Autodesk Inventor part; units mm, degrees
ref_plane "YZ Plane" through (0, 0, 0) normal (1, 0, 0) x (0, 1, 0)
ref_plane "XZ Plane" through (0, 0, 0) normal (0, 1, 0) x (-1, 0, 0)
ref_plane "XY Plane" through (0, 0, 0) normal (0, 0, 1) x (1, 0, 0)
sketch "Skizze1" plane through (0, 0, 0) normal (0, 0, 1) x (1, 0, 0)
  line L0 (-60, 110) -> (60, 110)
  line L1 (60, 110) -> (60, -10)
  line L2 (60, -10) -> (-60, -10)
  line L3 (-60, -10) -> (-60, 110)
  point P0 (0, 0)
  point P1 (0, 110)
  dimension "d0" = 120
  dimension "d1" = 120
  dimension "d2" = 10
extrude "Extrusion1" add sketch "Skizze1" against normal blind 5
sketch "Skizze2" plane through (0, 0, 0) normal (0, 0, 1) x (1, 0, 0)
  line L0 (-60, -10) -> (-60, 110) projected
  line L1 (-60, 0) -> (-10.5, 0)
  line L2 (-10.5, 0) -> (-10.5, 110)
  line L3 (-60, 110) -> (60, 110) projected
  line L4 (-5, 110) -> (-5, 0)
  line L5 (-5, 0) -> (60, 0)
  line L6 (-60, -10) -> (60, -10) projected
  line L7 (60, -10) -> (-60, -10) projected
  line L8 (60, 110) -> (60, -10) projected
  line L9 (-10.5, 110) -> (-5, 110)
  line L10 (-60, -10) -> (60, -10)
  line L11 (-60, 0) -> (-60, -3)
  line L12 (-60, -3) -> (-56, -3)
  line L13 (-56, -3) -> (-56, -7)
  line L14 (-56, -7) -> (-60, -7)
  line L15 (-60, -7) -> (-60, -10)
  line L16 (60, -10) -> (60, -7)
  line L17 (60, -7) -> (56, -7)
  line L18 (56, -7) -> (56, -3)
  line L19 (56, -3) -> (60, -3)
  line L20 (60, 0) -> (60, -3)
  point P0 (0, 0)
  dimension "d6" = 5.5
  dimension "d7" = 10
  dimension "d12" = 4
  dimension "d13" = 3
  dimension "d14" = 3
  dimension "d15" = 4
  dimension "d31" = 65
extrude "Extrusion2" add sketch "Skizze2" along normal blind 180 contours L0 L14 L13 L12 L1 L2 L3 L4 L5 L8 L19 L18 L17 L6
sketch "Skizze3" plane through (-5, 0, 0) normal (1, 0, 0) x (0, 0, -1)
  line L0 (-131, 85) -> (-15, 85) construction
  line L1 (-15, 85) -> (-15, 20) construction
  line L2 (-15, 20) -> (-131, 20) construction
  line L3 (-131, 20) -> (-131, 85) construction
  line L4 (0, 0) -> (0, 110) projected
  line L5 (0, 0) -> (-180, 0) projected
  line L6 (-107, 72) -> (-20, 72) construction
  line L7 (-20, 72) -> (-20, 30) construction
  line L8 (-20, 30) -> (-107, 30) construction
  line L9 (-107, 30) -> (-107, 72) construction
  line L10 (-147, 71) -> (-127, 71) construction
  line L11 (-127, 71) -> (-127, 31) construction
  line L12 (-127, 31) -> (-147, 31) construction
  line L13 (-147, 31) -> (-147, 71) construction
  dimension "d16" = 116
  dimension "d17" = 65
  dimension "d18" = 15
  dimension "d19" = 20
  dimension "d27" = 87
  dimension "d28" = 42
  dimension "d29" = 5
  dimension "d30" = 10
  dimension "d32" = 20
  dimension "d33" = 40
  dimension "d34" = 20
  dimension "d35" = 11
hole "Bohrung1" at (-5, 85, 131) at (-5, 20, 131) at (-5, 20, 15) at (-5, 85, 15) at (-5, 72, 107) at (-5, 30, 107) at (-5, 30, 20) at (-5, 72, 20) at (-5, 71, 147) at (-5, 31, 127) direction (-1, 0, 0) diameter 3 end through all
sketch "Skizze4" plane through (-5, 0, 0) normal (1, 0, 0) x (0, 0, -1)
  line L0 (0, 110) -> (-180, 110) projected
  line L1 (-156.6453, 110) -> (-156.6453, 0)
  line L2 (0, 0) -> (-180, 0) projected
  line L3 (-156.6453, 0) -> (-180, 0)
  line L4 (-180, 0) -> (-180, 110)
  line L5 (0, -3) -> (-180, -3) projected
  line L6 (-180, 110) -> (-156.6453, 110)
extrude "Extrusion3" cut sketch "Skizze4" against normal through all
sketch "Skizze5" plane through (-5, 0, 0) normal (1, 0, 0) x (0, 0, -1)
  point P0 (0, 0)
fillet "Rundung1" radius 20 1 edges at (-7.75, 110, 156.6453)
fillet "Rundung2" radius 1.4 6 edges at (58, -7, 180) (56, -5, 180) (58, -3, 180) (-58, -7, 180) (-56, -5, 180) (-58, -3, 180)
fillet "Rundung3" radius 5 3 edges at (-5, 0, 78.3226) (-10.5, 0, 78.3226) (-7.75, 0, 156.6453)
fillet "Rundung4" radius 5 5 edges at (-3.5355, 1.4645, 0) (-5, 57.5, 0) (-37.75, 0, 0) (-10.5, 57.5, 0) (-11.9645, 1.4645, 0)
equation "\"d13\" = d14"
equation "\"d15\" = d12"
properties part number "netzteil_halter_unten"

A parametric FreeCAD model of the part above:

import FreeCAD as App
import Part
import Sketcher
from FreeCAD import Vector
Q = App.Units.Quantity


def edges_at(feature, points):
    """Names of the edges that pass closest to the given points."""
    edges = feature.Shape.Edges
    near = lambda p: min(range(len(edges)), key=lambda i: edges[i].distToShape(Part.Vertex(*p))[0])
    return sorted({f"Edge{near(p) + 1}" for p in points})


def add_polygon(sketch, points):
    """Adds a closed chain of lines whose ends are joined by coincident constraints."""
    first, n = sketch.GeometryCount, len(points)
    for a, b in zip(points, points[1:] + points[:1]):
        sketch.addGeometry(Part.LineSegment(App.Vector(*a, 0), App.Vector(*b, 0)), False)
    for i in range(n):
        sketch.addConstraint(Sketcher.Constraint("Coincident", first + i, 2, first + (i + 1) % n, 1))

doc = App.newDocument("Part")
body = doc.addObject("PartDesign::Body", "Body")

# Sketch on XY plane
sketch1 = body.newObject("Sketcher::SketchObject", "Sketch")
sketch1.AttachmentSupport = (doc.getObject("XY_Plane"), [""])
sketch1.MapMode = "FlatFace"
add_polygon(sketch1, [(60, 110), (-60, 110), (-60, -10), (60, -10)])  # lines 0-3
sketch1.addConstraint([
    Sketcher.Constraint("Horizontal", 0),
    Sketcher.Constraint("Vertical", 1),
    Sketcher.Constraint("Horizontal", 2),
    Sketcher.Constraint("Vertical", 3),
    Sketcher.Constraint("Equal", 2, 1),
    Sketcher.Constraint("DistanceX", 0, 2, 0, 1, Q("120 mm")),
    Sketcher.Constraint("DistanceY", 1, 2, -1, 1, Q("10 mm")),
    Sketcher.Constraint("DistanceX", 0, 2, -1, 1, Q("60 mm")),
])
pad1 = body.newObject("PartDesign::Pad", "Pad")
pad1.Profile = sketch1
pad1.Length = 5
pad1.Reversed = True

# Sketch on XY plane
sketch2 = body.newObject("Sketcher::SketchObject", "Sketch001")
sketch2.AttachmentSupport = (doc.getObject("XY_Plane"), [""])
sketch2.MapMode = "FlatFace"
add_polygon(sketch2, [(-60, -7), (-60, -10), (60, -10), (60, -7), (56, -7), (56, -3), (60, -3), (60, 0), (-5, 0), (-5, 110), (-10.5, 110), (-10.5, 0), (-60, 0), (-60, -3), (-56, -3), (-56, -7)])  # lines 0-15
sketch2.addConstraint([
    Sketcher.Constraint("Vertical", 0),
    Sketcher.Constraint("Horizontal", 1),
    Sketcher.Constraint("Vertical", 2),
    Sketcher.Constraint("Horizontal", 3),
    Sketcher.Constraint("Vertical", 4),
    Sketcher.Constraint("Horizontal", 5),
    Sketcher.Constraint("Vertical", 6),
    Sketcher.Constraint("Horizontal", 7),
    Sketcher.Constraint("Vertical", 8),
    Sketcher.Constraint("Horizontal", 9),
    Sketcher.Constraint("Vertical", 10),
    Sketcher.Constraint("Horizontal", 11),
    Sketcher.Constraint("Vertical", 12),
    Sketcher.Constraint("Horizontal", 13),
    Sketcher.Constraint("Vertical", 14),
    Sketcher.Constraint("Horizontal", 15),
    Sketcher.Constraint("Symmetric", 6, 2, 11, 2, -1, 1),
    Sketcher.Constraint("Symmetric", 4, 2, 13, 2, -2),
    Sketcher.Constraint("Symmetric", 2, 2, 15, 2, -2),
    Sketcher.Constraint("PointOnObject", 6, 2, -1),
    Sketcher.Constraint("Vertical", 2, 2, 5, 2),
    Sketcher.Constraint("Equal", 15, 4),
    Sketcher.Constraint("Equal", 2, 6),
    Sketcher.Constraint("DistanceX", 3, 2, 3, 1, Q("4 mm")),
    Sketcher.Constraint("DistanceX", 7, 2, 7, 1, Q("65 mm")),
    Sketcher.Constraint("DistanceY", 0, 2, 0, 1, Q("3 mm")),
    Sketcher.Constraint("DistanceX", 9, 2, 9, 1, Q("5.5 mm")),
    Sketcher.Constraint("DistanceX", 1, 1, 1, 2, Q("120 mm")),
    Sketcher.Constraint("DistanceY", 8, 1, 8, 2, Q("110 mm")),
])
pad2 = body.newObject("PartDesign::Pad", "Pad001")
pad2.Profile = sketch2
pad2.Length = 180

# Sketch on YZ plane
sketch3 = body.newObject("Sketcher::SketchObject", "Sketch002")
sketch3.AttachmentSupport = (doc.getObject("YZ_Plane"), [""])
sketch3.MapMode = "FlatFace"
sketch3.AttachmentOffset = App.Placement(Vector(0, 0, -5), App.Rotation())
sketch3.addGeometry([
    Part.Circle(Vector(85, 131, 0), Vector(0, 0, 1), 1.5),  # 0
    Part.Circle(Vector(20, 131, 0), Vector(0, 0, 1), 1.5),  # 1
    Part.Circle(Vector(20, 15, 0), Vector(0, 0, 1), 1.5),  # 2
    Part.Circle(Vector(85, 15, 0), Vector(0, 0, 1), 1.5),  # 3
    Part.Circle(Vector(72, 107, 0), Vector(0, 0, 1), 1.5),  # 4
    Part.Circle(Vector(30, 107, 0), Vector(0, 0, 1), 1.5),  # 5
    Part.Circle(Vector(30, 20, 0), Vector(0, 0, 1), 1.5),  # 6
    Part.Circle(Vector(72, 20, 0), Vector(0, 0, 1), 1.5),  # 7
    Part.Circle(Vector(71, 147, 0), Vector(0, 0, 1), 1.5),  # 8
    Part.Circle(Vector(31, 127, 0), Vector(0, 0, 1), 1.5),  # 9
], False)
sketch3.addConstraint([
    Sketcher.Constraint("Equal", 0, 1),
    Sketcher.Constraint("Equal", 1, 2),
    Sketcher.Constraint("Equal", 2, 3),
    Sketcher.Constraint("Equal", 3, 4),
    Sketcher.Constraint("Equal", 4, 5),
    Sketcher.Constraint("Equal", 5, 6),
    Sketcher.Constraint("Equal", 6, 7),
    Sketcher.Constraint("Equal", 7, 8),
    Sketcher.Constraint("Equal", 8, 9),
    Sketcher.Constraint("Horizontal", 0, 3, 1, 3),
    Sketcher.Constraint("Horizontal", 2, 3, 3, 3),
    Sketcher.Constraint("Horizontal", 4, 3, 5, 3),
    Sketcher.Constraint("Horizontal", 6, 3, 7, 3),
    Sketcher.Constraint("Vertical", 1, 3, 2, 3),
    Sketcher.Constraint("Vertical", 0, 3, 3, 3),
    Sketcher.Constraint("Vertical", 5, 3, 6, 3),
    Sketcher.Constraint("Vertical", 4, 3, 7, 3),
    Sketcher.Constraint("Diameter", 0, Q("3 mm")),
    Sketcher.Constraint("DistanceX", -1, 1, 0, 3, Q("85 mm")),
    Sketcher.Constraint("DistanceY", -1, 1, 0, 3, Q("131 mm")),
    Sketcher.Constraint("DistanceX", -1, 1, 1, 3, Q("20 mm")),
    Sketcher.Constraint("DistanceY", -1, 1, 2, 3, Q("15 mm")),
    Sketcher.Constraint("DistanceX", -1, 1, 4, 3, Q("72 mm")),
    Sketcher.Constraint("DistanceY", -1, 1, 4, 3, Q("107 mm")),
    Sketcher.Constraint("DistanceX", -1, 1, 5, 3, Q("30 mm")),
    Sketcher.Constraint("DistanceY", -1, 1, 6, 3, Q("20 mm")),
    Sketcher.Constraint("DistanceX", -1, 1, 8, 3, Q("71 mm")),
    Sketcher.Constraint("DistanceY", -1, 1, 8, 3, Q("147 mm")),
    Sketcher.Constraint("DistanceX", -1, 1, 9, 3, Q("31 mm")),
    Sketcher.Constraint("DistanceY", -1, 1, 9, 3, Q("127 mm")),
])
doc.recompute()
hole = body.newObject("PartDesign::Hole", "Hole")
hole.Profile = sketch3
hole.ThreadType = "None"
hole.Diameter = 3
hole.DepthType = "ThroughAll"

# Sketch on YZ plane
sketch4 = body.newObject("Sketcher::SketchObject", "Sketch003")
sketch4.AttachmentSupport = (doc.getObject("YZ_Plane"), [""])
sketch4.MapMode = "FlatFace"
sketch4.AttachmentOffset = App.Placement(Vector(0, 0, -5), App.Rotation())
add_polygon(sketch4, [(0, 157), (110, 157), (110, 180), (0, 180)])  # lines 0-3
sketch4.addConstraint([
    Sketcher.Constraint("Horizontal", 0),
    Sketcher.Constraint("Vertical", 1),
    Sketcher.Constraint("Horizontal", 2),
    Sketcher.Constraint("Vertical", 3),
    Sketcher.Constraint("PointOnObject", 2, 2, -2),
    Sketcher.Constraint("DistanceX", 0, 1, 0, 2, Q("110 mm")),
    Sketcher.Constraint("DistanceY", -1, 1, 1, 2, Q("180 mm")),
    Sketcher.Constraint("DistanceY", 1, 1, 1, 2, Q("23.3547 mm")),
])
pocket1 = body.newObject("PartDesign::Pocket", "Pocket")
pocket1.Profile = sketch4
pocket1.Type = "ThroughAll"
doc.recompute()

fillet = body.newObject("PartDesign::Fillet", "Fillet")
fillet.Base = (pocket1, edges_at(pocket1, [(-7.75, 110, 156.645)]))
fillet.Radius = 20
doc.recompute()

fillet2 = body.newObject("PartDesign::Fillet", "Fillet001")
fillet2.Base = (fillet, edges_at(fillet, [
    (58, -7, 180),
    (56, -5, 180),
    (58, -3, 180),
    (-58, -7, 180),
    (-56, -5, 180),
    (-58, -3, 180),
]))
fillet2.Radius = 1.4
doc.recompute()

fillet3 = body.newObject("PartDesign::Fillet", "Fillet002")
fillet3.Base = (fillet2, edges_at(fillet2, [(-5, 0, 78.323), (-10.5, 0, 78.323), (-7.75, 0, 156.645)]))
fillet3.Radius = 5
doc.recompute()

fillet4 = body.newObject("PartDesign::Fillet", "Fillet003")
fillet4.Base = (fillet3, edges_at(fillet3, [
    (-3.535, 1.464, 0),
    (-5, 57.5, 0),
    (-37.75, 0, 0),
    (-10.5, 57.5, 0),
    (-11.964, 1.464, 0),
]))
fillet4.Radius = 5

doc.recompute()
